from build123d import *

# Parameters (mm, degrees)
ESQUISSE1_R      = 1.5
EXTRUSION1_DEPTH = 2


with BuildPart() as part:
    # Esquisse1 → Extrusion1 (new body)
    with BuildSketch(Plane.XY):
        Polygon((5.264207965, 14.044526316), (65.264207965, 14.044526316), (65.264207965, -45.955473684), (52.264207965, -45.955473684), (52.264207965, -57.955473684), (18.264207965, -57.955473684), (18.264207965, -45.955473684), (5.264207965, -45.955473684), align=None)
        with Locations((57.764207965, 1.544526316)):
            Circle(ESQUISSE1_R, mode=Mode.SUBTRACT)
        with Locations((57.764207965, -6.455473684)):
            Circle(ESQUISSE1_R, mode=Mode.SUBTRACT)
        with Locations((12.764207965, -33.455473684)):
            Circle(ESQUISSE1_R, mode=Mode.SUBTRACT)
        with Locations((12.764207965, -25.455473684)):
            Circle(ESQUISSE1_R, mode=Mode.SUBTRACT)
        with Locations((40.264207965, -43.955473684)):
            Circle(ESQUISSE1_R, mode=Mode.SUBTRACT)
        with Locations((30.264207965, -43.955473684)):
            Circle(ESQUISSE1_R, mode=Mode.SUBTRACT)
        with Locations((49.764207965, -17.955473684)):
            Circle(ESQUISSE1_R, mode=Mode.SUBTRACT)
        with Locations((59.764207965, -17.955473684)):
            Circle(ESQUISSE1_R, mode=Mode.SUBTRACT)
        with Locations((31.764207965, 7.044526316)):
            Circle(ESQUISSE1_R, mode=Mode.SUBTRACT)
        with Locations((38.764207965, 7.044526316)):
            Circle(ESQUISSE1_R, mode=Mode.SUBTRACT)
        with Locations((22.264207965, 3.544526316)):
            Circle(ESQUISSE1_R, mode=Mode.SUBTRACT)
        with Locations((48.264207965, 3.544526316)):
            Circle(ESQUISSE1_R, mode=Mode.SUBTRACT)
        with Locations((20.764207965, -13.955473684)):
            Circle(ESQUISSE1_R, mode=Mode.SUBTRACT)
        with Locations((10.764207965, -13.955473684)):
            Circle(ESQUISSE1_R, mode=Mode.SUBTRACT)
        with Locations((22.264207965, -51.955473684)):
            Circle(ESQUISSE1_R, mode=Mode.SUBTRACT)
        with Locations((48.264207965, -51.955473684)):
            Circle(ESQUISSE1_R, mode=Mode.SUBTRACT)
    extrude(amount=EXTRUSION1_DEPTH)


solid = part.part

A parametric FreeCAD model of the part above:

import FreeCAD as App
import Part
import Sketcher
from FreeCAD import Vector
Q = App.Units.Quantity

doc = App.newDocument("Part")
body = doc.addObject("PartDesign::Body", "Body")

sketch1 = body.newObject("Sketcher::SketchObject", "Sketch")
sketch1.AttachmentSupport = (doc.getObject("XY_Plane"), [""])
sketch1.MapMode = "FlatFace"
sketch1.addGeometry(Part.LineSegment(Vector(65.264208, 14.044526, 0), Vector(5.264208, 14.044526, 0)), False)
sketch1.addGeometry(Part.LineSegment(Vector(5.264208, 14.044526, 0), Vector(5.264208, -45.955474, 0)), False)
sketch1.addGeometry(Part.LineSegment(Vector(5.264208, -45.955474, 0), Vector(18.264208, -45.955474, 0)), False)
sketch1.addGeometry(Part.LineSegment(Vector(18.264208, -45.955474, 0), Vector(18.264208, -57.955474, 0)), False)
sketch1.addGeometry(Part.LineSegment(Vector(18.264208, -57.955474, 0), Vector(52.264208, -57.955474, 0)), False)
sketch1.addGeometry(Part.LineSegment(Vector(52.264208, -57.955474, 0), Vector(52.264208, -45.955474, 0)), False)
sketch1.addGeometry(Part.LineSegment(Vector(52.264208, -45.955474, 0), Vector(65.264208, -45.955474, 0)), False)
sketch1.addGeometry(Part.LineSegment(Vector(65.264208, -45.955474, 0), Vector(65.264208, 14.044526, 0)), False)
sketch1.addGeometry(Part.Circle(Vector(48.264208, -51.955474, 0), Vector(0, 0, 1), 1.5), False)
sketch1.addGeometry(Part.Circle(Vector(40.264208, -43.955474, 0), Vector(0, 0, 1), 1.5), False)
sketch1.addGeometry(Part.Circle(Vector(30.264208, -43.955474, 0), Vector(0, 0, 1), 1.5), False)
sketch1.addGeometry(Part.Circle(Vector(22.264208, -51.955474, 0), Vector(0, 0, 1), 1.5), False)
sketch1.addGeometry(Part.Circle(Vector(12.764208, -33.455474, 0), Vector(0, 0, 1), 1.5), False)
sketch1.addGeometry(Part.Circle(Vector(12.764208, -25.455474, 0), Vector(0, 0, 1), 1.5), False)
sketch1.addGeometry(Part.Circle(Vector(59.764208, -17.955474, 0), Vector(0, 0, 1), 1.5), False)
sketch1.addGeometry(Part.Circle(Vector(49.764208, -17.955474, 0), Vector(0, 0, 1), 1.5), False)
sketch1.addGeometry(Part.Circle(Vector(57.764208, -6.455474, 0), Vector(0, 0, 1), 1.5), False)
sketch1.addGeometry(Part.Circle(Vector(57.764208, 1.544526, 0), Vector(0, 0, 1), 1.5), False)
sketch1.addGeometry(Part.Circle(Vector(48.264208, 3.544526, 0), Vector(0, 0, 1), 1.5), False)
sketch1.addGeometry(Part.Circle(Vector(38.764208, 7.044526, 0), Vector(0, 0, 1), 1.5), False)
sketch1.addGeometry(Part.Circle(Vector(20.764208, -13.955474, 0), Vector(0, 0, 1), 1.5), False)
sketch1.addGeometry(Part.Circle(Vector(10.764208, -13.955474, 0), Vector(0, 0, 1), 1.5), False)
sketch1.addGeometry(Part.Circle(Vector(31.764208, 7.044526, 0), Vector(0, 0, 1), 1.5), False)
sketch1.addGeometry(Part.Circle(Vector(22.264208, 3.544526, 0), Vector(0, 0, 1), 1.5), False)
sketch1.addConstraint(Sketcher.Constraint("Coincident", 0, 2, 1, 1))
sketch1.addConstraint(Sketcher.Constraint("Coincident", 1, 2, 2, 1))
sketch1.addConstraint(Sketcher.Constraint("Coincident", 2, 2, 3, 1))
sketch1.addConstraint(Sketcher.Constraint("Coincident", 3, 2, 4, 1))
sketch1.addConstraint(Sketcher.Constraint("Coincident", 4, 2, 5, 1))
sketch1.addConstraint(Sketcher.Constraint("Coincident", 5, 2, 6, 1))
sketch1.addConstraint(Sketcher.Constraint("Coincident", 6, 2, 7, 1))
sketch1.addConstraint(Sketcher.Constraint("Coincident", 7, 2, 0, 1))
sketch1.addConstraint(Sketcher.Constraint("Horizontal", 0))
sketch1.addConstraint(Sketcher.Constraint("Vertical", 1))
sketch1.addConstraint(Sketcher.Constraint("Horizontal", 2))
sketch1.addConstraint(Sketcher.Constraint("Vertical", 3))
sketch1.addConstraint(Sketcher.Constraint("Horizontal", 4))
sketch1.addConstraint(Sketcher.Constraint("Vertical", 5))
sketch1.addConstraint(Sketcher.Constraint("Horizontal", 6))
sketch1.addConstraint(Sketcher.Constraint("Vertical", 7))
sketch1.addConstraint(Sketcher.Constraint("Equal", 8, 9))
sketch1.addConstraint(Sketcher.Constraint("Equal", 9, 10))
sketch1.addConstraint(Sketcher.Constraint("Equal", 10, 11))
sketch1.addConstraint(Sketcher.Constraint("Equal", 11, 12))
sketch1.addConstraint(Sketcher.Constraint("Equal", 12, 13))
sketch1.addConstraint(Sketcher.Constraint("Equal", 13, 14))
sketch1.addConstraint(Sketcher.Constraint("Equal", 14, 15))
sketch1.addConstraint(Sketcher.Constraint("Equal", 15, 16))
sketch1.addConstraint(Sketcher.Constraint("Equal", 16, 17))
sketch1.addConstraint(Sketcher.Constraint("Equal", 17, 18))
sketch1.addConstraint(Sketcher.Constraint("Equal", 18, 19))
sketch1.addConstraint(Sketcher.Constraint("Equal", 19, 20))
sketch1.addConstraint(Sketcher.Constraint("Equal", 20, 21))
sketch1.addConstraint(Sketcher.Constraint("Equal", 21, 22))
sketch1.addConstraint(Sketcher.Constraint("Equal", 22, 23))
sketch1.addConstraint(Sketcher.Constraint("Horizontal", 9, 3, 10, 3))
sketch1.addConstraint(Sketcher.Constraint("Horizontal", 8, 3, 11, 3))
sketch1.addConstraint(Sketcher.Constraint("Horizontal", 14, 3, 15, 3))
sketch1.addConstraint(Sketcher.Constraint("Horizontal", 20, 3, 21, 3))
sketch1.addConstraint(Sketcher.Constraint("Horizontal", 19, 3, 22, 3))
sketch1.addConstraint(Sketcher.Constraint("Horizontal", 18, 3, 23, 3))
sketch1.addConstraint(Sketcher.Constraint("Horizontal", 2, 2, 5, 2))
sketch1.addConstraint(Sketcher.Constraint("Vertical", 12, 3, 13, 3))
sketch1.addConstraint(Sketcher.Constraint("Vertical", 16, 3, 17, 3))
sketch1.addConstraint(Sketcher.Constraint("Vertical", 8, 3, 18, 3))
sketch1.addConstraint(Sketcher.Constraint("Vertical", 11, 3, 23, 3))
sketch1.addConstraint(Sketcher.Constraint("Equal", 2, 6))
sketch1.addConstraint(Sketcher.Constraint("Equal", 0, 1))
sketch1.addConstraint(Sketcher.Constraint("Diameter", 8, Q("3 mm")))
sketch1.addConstraint(Sketcher.Constraint("DistanceX", 0, 2, 0, 1, Q("60 mm")))
sketch1.addConstraint(Sketcher.Constraint("DistanceX", 2, 1, 2, 2, Q("13 mm")))
sketch1.addConstraint(Sketcher.Constraint("DistanceY", 3, 2, 3, 1, Q("12 mm")))
sketch1.addConstraint(Sketcher.Constraint("DistanceX", 9, 3, 8, 3, Q("8 mm")))
sketch1.addConstraint(Sketcher.Constraint("DistanceY", 8, 3, 9, 3, Q("8 mm")))
sketch1.addConstraint(Sketcher.Constraint("DistanceX", 10, 3, 9, 3, Q("10 mm")))
sketch1.addConstraint(Sketcher.Constraint("DistanceX", 11, 3, 10, 3, Q("8 mm")))
sketch1.addConstraint(Sketcher.Constraint("DistanceY", 12, 3, 13, 3, Q("8 mm")))
sketch1.addConstraint(Sketcher.Constraint("DistanceY", 9, 3, 14, 3, Q("26 mm")))
sketch1.addConstraint(Sketcher.Constraint("DistanceX", 13, 3, 14, 3, Q("47 mm")))
sketch1.addConstraint(Sketcher.Constraint("DistanceX", 15, 3, 14, 3, Q("10 mm")))
sketch1.addConstraint(Sketcher.Constraint("DistanceX", 16, 3, 14, 3, Q("2 mm")))
sketch1.addConstraint(Sketcher.Constraint("DistanceY", 16, 3, 17, 3, Q("8 mm")))
sketch1.addConstraint(Sketcher.Constraint("DistanceY", 13, 3, 17, 3, Q("27 mm")))
sketch1.addConstraint(Sketcher.Constraint("DistanceY", 17, 3, 18, 3, Q("2 mm")))
sketch1.addConstraint(Sketcher.Constraint("DistanceX", 19, 3, 17, 3, Q("19 mm")))
sketch1.addConstraint(Sketcher.Constraint("DistanceY", 15, 3, 19, 3, Q("25 mm")))
sketch1.addConstraint(Sketcher.Constraint("DistanceX", 13, 3, 20, 3, Q("8 mm")))
sketch1.addConstraint(Sketcher.Constraint("DistanceY", 20, 3, 19, 3, Q("21 mm")))
sketch1.addConstraint(Sketcher.Constraint("DistanceX", 21, 3, 20, 3, Q("10 mm")))
sketch1.addConstraint(Sketcher.Constraint("DistanceX", 22, 3, 19, 3, Q("7 mm")))
sketch1.addConstraint(Sketcher.Constraint("DistanceX", 0, 2, 23, 3, Q("17 mm")))
sketch1.addConstraint(Sketcher.Constraint("DistanceY", 22, 3, 0, 2, Q("7 mm")))
sketch1.addConstraint(Sketcher.Constraint("DistanceX", 12, 3, 10, 3, Q("17.5 mm")))
sketch1.addConstraint(Sketcher.Constraint("DistanceY", 10, 3, 12, 3, Q("10.5 mm")))
sketch1.addConstraint(Sketcher.Constraint("DistanceX", -1, 1, 8, 3, Q("48.264208 mm")))
sketch1.addConstraint(Sketcher.Constraint("DistanceY", 8, 3, -1, 1, Q("51.955474 mm")))
pad1 = body.newObject("PartDesign::Pad", "Pad")
pad1.Profile = sketch1
pad1.Length = 2

doc.recompute()
